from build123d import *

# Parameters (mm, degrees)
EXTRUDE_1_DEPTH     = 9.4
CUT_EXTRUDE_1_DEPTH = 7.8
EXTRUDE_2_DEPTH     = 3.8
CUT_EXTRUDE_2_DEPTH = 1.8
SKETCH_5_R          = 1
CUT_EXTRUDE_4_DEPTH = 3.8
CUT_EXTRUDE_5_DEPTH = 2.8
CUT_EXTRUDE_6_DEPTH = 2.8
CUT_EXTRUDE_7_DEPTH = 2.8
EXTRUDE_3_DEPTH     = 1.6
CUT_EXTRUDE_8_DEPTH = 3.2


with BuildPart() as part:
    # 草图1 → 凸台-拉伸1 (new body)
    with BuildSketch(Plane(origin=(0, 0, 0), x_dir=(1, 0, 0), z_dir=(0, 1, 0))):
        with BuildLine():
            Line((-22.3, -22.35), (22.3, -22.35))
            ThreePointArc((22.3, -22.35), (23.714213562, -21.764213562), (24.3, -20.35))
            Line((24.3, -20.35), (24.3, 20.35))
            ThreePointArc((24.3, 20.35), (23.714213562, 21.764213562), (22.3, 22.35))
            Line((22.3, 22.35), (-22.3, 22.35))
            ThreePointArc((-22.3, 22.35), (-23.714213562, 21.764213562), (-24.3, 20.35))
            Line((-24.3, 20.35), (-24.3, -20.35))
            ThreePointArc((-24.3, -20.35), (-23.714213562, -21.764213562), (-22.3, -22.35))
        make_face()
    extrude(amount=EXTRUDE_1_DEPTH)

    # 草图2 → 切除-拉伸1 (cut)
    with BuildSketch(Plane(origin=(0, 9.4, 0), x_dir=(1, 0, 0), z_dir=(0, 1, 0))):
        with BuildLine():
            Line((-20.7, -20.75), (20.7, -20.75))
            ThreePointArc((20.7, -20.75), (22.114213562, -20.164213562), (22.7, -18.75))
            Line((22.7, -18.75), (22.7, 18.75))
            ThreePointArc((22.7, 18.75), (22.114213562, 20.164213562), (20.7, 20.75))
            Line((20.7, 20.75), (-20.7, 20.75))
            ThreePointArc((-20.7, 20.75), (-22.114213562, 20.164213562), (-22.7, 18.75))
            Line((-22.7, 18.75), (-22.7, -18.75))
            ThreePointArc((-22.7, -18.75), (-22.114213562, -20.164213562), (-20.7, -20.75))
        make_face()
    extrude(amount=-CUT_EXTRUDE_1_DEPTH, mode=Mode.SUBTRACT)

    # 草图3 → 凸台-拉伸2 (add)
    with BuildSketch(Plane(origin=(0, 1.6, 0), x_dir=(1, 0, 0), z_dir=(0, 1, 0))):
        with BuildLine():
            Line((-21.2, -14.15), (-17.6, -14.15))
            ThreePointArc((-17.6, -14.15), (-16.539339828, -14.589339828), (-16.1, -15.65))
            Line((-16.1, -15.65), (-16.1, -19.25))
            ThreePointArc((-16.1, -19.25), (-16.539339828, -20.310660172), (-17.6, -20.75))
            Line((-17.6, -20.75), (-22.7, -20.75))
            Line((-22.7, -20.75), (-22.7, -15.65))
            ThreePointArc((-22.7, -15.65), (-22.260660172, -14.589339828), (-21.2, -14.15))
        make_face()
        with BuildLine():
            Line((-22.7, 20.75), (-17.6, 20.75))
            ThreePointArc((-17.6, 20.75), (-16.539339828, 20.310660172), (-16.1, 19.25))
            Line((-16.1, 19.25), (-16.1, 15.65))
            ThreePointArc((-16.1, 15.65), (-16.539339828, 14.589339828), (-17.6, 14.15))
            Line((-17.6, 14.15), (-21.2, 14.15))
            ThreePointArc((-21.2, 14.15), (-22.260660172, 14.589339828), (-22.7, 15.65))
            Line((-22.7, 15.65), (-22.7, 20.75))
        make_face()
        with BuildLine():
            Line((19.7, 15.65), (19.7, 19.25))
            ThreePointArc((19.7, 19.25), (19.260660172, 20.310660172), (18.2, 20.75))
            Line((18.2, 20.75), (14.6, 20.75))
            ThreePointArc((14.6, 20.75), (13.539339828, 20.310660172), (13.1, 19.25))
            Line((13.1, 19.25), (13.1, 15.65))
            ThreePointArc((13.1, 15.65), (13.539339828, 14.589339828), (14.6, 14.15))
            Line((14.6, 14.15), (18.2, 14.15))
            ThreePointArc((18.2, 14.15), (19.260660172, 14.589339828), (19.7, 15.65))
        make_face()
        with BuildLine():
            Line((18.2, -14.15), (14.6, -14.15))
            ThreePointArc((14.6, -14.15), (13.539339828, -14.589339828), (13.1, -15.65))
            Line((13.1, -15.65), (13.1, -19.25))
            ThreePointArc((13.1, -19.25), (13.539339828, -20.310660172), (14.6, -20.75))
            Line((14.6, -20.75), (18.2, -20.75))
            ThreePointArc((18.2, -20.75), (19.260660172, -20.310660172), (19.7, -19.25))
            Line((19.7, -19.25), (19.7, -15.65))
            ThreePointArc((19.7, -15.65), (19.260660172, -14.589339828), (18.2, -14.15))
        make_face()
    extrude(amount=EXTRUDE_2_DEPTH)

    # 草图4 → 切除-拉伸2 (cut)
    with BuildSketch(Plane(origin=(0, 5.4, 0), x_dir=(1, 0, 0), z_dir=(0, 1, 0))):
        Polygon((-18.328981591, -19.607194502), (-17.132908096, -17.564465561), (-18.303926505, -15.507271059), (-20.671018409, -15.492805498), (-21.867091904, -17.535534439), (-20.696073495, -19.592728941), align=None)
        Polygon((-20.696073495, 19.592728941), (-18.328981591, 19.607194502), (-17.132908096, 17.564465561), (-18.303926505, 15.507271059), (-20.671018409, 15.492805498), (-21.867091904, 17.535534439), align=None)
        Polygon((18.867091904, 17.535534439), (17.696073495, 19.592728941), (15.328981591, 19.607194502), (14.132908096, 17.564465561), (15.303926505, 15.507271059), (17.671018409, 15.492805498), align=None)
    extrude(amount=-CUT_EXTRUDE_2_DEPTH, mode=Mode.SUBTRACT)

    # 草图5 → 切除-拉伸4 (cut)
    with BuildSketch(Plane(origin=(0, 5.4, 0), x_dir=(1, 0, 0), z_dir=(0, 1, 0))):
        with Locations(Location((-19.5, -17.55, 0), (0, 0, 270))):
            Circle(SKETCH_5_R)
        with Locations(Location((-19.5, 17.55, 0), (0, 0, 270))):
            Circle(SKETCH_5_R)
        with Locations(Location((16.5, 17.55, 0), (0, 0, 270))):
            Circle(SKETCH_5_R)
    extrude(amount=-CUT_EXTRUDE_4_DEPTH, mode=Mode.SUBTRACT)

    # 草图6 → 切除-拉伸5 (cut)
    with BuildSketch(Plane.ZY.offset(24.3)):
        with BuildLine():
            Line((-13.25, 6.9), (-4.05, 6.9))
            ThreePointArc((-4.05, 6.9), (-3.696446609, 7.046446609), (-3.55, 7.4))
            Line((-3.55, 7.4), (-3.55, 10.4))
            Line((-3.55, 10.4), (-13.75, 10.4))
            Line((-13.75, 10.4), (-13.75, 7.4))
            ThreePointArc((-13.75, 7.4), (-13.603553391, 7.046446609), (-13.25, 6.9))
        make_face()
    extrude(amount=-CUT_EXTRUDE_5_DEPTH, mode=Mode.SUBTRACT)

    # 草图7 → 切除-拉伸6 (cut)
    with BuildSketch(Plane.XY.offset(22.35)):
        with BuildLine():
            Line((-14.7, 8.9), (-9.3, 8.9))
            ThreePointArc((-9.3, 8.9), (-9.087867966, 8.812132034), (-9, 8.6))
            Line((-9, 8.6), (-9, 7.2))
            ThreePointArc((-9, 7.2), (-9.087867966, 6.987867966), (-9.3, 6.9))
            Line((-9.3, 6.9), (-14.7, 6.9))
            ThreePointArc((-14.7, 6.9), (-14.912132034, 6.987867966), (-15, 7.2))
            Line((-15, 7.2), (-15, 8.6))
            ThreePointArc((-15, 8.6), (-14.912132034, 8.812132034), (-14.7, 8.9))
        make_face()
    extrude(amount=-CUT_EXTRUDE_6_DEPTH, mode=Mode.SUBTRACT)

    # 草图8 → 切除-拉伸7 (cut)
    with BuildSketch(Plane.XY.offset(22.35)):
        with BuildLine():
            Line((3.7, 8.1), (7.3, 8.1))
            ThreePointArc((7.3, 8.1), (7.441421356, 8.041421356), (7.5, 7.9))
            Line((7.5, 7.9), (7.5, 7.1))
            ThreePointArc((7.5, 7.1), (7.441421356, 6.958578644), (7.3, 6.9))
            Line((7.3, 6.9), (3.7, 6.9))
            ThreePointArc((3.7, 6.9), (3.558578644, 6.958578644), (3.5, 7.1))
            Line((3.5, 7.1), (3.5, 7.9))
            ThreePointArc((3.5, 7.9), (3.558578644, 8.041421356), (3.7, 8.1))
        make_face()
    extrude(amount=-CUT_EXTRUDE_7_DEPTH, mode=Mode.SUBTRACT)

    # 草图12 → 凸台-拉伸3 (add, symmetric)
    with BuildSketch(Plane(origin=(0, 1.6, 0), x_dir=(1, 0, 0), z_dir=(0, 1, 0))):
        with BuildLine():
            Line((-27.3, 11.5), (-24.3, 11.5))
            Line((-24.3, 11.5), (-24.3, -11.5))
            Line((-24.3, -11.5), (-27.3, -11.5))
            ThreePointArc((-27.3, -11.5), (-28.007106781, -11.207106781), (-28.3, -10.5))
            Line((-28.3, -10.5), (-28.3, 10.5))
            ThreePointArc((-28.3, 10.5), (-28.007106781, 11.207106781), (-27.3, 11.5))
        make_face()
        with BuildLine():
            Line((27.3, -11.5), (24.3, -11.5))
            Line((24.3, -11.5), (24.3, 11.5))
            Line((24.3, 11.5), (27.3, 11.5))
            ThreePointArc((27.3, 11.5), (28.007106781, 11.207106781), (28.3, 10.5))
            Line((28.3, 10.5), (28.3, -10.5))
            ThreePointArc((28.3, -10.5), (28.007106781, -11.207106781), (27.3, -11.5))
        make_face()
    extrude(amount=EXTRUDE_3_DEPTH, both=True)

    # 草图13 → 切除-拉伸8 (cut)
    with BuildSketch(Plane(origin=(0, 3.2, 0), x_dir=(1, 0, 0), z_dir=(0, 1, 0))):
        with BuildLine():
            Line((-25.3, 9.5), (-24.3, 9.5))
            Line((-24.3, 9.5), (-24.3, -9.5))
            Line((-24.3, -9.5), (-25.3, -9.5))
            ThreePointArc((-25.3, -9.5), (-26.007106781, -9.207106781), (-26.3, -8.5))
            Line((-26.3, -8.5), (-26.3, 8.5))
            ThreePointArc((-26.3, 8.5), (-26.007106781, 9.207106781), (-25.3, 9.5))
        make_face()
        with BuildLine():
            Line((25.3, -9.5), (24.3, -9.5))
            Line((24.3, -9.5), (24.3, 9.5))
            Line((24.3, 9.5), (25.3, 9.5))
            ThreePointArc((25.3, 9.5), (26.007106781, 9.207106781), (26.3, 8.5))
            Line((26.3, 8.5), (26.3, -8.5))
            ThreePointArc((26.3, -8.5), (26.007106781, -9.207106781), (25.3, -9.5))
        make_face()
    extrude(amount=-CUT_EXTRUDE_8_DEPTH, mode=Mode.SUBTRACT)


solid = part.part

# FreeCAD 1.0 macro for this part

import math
import FreeCAD as App
import Part
import Sketcher
Q = App.Units.Quantity


def add_polygon(sketch, points):
    """Adds a closed chain of lines whose ends are joined by coincident constraints."""
    first, n = sketch.GeometryCount, len(points)
    for a, b in zip(points, points[1:] + points[:1]):
        sketch.addGeometry(Part.LineSegment(App.Vector(*a, 0), App.Vector(*b, 0)), False)
    for i in range(n):
        sketch.addConstraint(Sketcher.Constraint("Coincident", first + i, 2, first + (i + 1) % n, 1))

doc = App.newDocument("Part")
body = doc.addObject("PartDesign::Body", "Body")

# Sketch on XZ plane
sketch1 = doc.addObject("Sketcher::SketchObject", "Sketch")
body.addObject(sketch1)
sketch1.AttachmentSupport = (doc.XZ_Plane, [""])
sketch1.MapMode = "FlatFace"
sketch1.addGeometry([
    Part.LineSegment(App.Vector(-22.3, 22.35, 0), App.Vector(22.3, 22.35, 0)),  # 0
    Part.ArcOfCircle(Part.Circle(App.Vector(22.3, 20.35, 0), App.Vector(0, 0, 1), 2), math.radians(0), math.radians(90)),  # 1
    Part.LineSegment(App.Vector(24.3, 20.35, 0), App.Vector(24.3, -20.35, 0)),  # 2
    Part.ArcOfCircle(Part.Circle(App.Vector(22.3, -20.35, 0), App.Vector(0, 0, 1), 2), math.radians(-90), math.radians(0)),  # 3
    Part.LineSegment(App.Vector(22.3, -22.35, 0), App.Vector(-22.3, -22.35, 0)),  # 4
    Part.ArcOfCircle(Part.Circle(App.Vector(-22.3, -20.35, 0), App.Vector(0, 0, 1), 2), math.radians(-180), math.radians(-90)),  # 5
    Part.LineSegment(App.Vector(-24.3, -20.35, 0), App.Vector(-24.3, 20.35, 0)),  # 6
    Part.ArcOfCircle(Part.Circle(App.Vector(-22.3, 20.35, 0), App.Vector(0, 0, 1), 2), math.radians(90), math.radians(180)),  # 7
], False)
sketch1.addConstraint([
    Sketcher.Constraint("Tangent", 0, 2, 1, 2),
    Sketcher.Constraint("Tangent", 1, 1, 2, 1),
    Sketcher.Constraint("Tangent", 2, 2, 3, 2),
    Sketcher.Constraint("Tangent", 3, 1, 4, 1),
    Sketcher.Constraint("Tangent", 4, 2, 5, 2),
    Sketcher.Constraint("Tangent", 5, 1, 6, 1),
    Sketcher.Constraint("Tangent", 6, 2, 7, 2),
    Sketcher.Constraint("Tangent", 7, 1, 0, 1),
    Sketcher.Constraint("Horizontal", 0),
    Sketcher.Constraint("Vertical", 2),
    Sketcher.Constraint("Horizontal", 4),
    Sketcher.Constraint("Vertical", 6),
    Sketcher.Constraint("Equal", 1, 3),
    Sketcher.Constraint("Equal", 3, 5),
    Sketcher.Constraint("Equal", 5, 7),
    Sketcher.Constraint("Symmetric", 1, 3, 5, 3, -1, 1),
    Sketcher.Constraint("Radius", 1, Q("2 mm")),
    Sketcher.Constraint("DistanceX", 0, 1, 0, 2, Q("44.6 mm")),
    Sketcher.Constraint("DistanceY", 2, 2, 2, 1, Q("40.7 mm")),
])
pad1 = doc.addObject("PartDesign::Pad", "Pad")
body.addObject(pad1)
pad1.Profile = sketch1
pad1.Length = 9.4
pad1.Reversed = True

# Sketch on XZ plane
sketch2 = doc.addObject("Sketcher::SketchObject", "Sketch001")
body.addObject(sketch2)
sketch2.AttachmentSupport = (doc.XZ_Plane, [""])
sketch2.MapMode = "FlatFace"
sketch2.AttachmentOffset = App.Placement(App.Vector(0, 0, -9.4), App.Rotation())
sketch2.addGeometry([
    Part.LineSegment(App.Vector(-20.7, 20.75, 0), App.Vector(20.7, 20.75, 0)),  # 0
    Part.ArcOfCircle(Part.Circle(App.Vector(20.7, 18.75, 0), App.Vector(0, 0, 1), 2), math.radians(0), math.radians(90)),  # 1
    Part.LineSegment(App.Vector(22.7, 18.75, 0), App.Vector(22.7, -18.75, 0)),  # 2
    Part.ArcOfCircle(Part.Circle(App.Vector(20.7, -18.75, 0), App.Vector(0, 0, 1), 2), math.radians(-90), math.radians(0)),  # 3
    Part.LineSegment(App.Vector(20.7, -20.75, 0), App.Vector(-20.7, -20.75, 0)),  # 4
    Part.ArcOfCircle(Part.Circle(App.Vector(-20.7, -18.75, 0), App.Vector(0, 0, 1), 2), math.radians(-180), math.radians(-90)),  # 5
    Part.LineSegment(App.Vector(-22.7, -18.75, 0), App.Vector(-22.7, 18.75, 0)),  # 6
    Part.ArcOfCircle(Part.Circle(App.Vector(-20.7, 18.75, 0), App.Vector(0, 0, 1), 2), math.radians(90), math.radians(180)),  # 7
], False)
sketch2.addConstraint([
    Sketcher.Constraint("Tangent", 0, 2, 1, 2),
    Sketcher.Constraint("Tangent", 1, 1, 2, 1),
    Sketcher.Constraint("Tangent", 2, 2, 3, 2),
    Sketcher.Constraint("Tangent", 3, 1, 4, 1),
    Sketcher.Constraint("Tangent", 4, 2, 5, 2),
    Sketcher.Constraint("Tangent", 5, 1, 6, 1),
    Sketcher.Constraint("Tangent", 6, 2, 7, 2),
    Sketcher.Constraint("Tangent", 7, 1, 0, 1),
    Sketcher.Constraint("Horizontal", 0),
    Sketcher.Constraint("Vertical", 2),
    Sketcher.Constraint("Horizontal", 4),
    Sketcher.Constraint("Vertical", 6),
    Sketcher.Constraint("Equal", 1, 3),
    Sketcher.Constraint("Equal", 3, 5),
    Sketcher.Constraint("Equal", 5, 7),
    Sketcher.Constraint("Symmetric", 1, 3, 5, 3, -1, 1),
    Sketcher.Constraint("Radius", 1, Q("2 mm")),
    Sketcher.Constraint("DistanceX", 0, 1, 0, 2, Q("41.4 mm")),
    Sketcher.Constraint("DistanceY", 2, 2, 2, 1, Q("37.5 mm")),
])
pocket1 = doc.addObject("PartDesign::Pocket", "Pocket")
body.addObject(pocket1)
pocket1.Profile = sketch2
pocket1.Length = 7.8
pocket1.Reversed = True

# Sketch on XZ plane
sketch3 = doc.addObject("Sketcher::SketchObject", "Sketch002")
body.addObject(sketch3)
sketch3.AttachmentSupport = (doc.XZ_Plane, [""])
sketch3.MapMode = "FlatFace"
sketch3.AttachmentOffset = App.Placement(App.Vector(0, 0, -1.6), App.Rotation())
sketch3.addGeometry([
    Part.LineSegment(App.Vector(-17.6, 14.15, 0), App.Vector(-21.2, 14.15, 0)),  # 0
    Part.ArcOfCircle(Part.Circle(App.Vector(-21.2, 15.65, 0), App.Vector(0, 0, 1), 1.5), math.radians(180), math.radians(270)),  # 1
    Part.LineSegment(App.Vector(-22.7, 15.65, 0), App.Vector(-22.7, 20.75, 0)),  # 2
    Part.LineSegment(App.Vector(-22.7, 20.75, 0), App.Vector(-17.6, 20.75, 0)),  # 3
    Part.ArcOfCircle(Part.Circle(App.Vector(-17.6, 19.25, 0), App.Vector(0, 0, 1), 1.5), math.radians(0), math.radians(90)),  # 4
    Part.LineSegment(App.Vector(-16.1, 19.25, 0), App.Vector(-16.1, 15.65, 0)),  # 5
    Part.ArcOfCircle(Part.Circle(App.Vector(-17.6, 15.65, 0), App.Vector(0, 0, 1), 1.5), math.radians(-90), math.radians(0)),  # 6
    Part.LineSegment(App.Vector(-17.6, -20.75, 0), App.Vector(-22.7, -20.75, 0)),  # 7
    Part.LineSegment(App.Vector(-22.7, -20.75, 0), App.Vector(-22.7, -15.65, 0)),  # 8
    Part.ArcOfCircle(Part.Circle(App.Vector(-21.2, -15.65, 0), App.Vector(0, 0, 1), 1.5), math.radians(90), math.radians(180)),  # 9
    Part.LineSegment(App.Vector(-21.2, -14.15, 0), App.Vector(-17.6, -14.15, 0)),  # 10
    Part.ArcOfCircle(Part.Circle(App.Vector(-17.6, -15.65, 0), App.Vector(0, 0, 1), 1.5), math.radians(0), math.radians(90)),  # 11
    Part.LineSegment(App.Vector(-16.1, -15.65, 0), App.Vector(-16.1, -19.25, 0)),  # 12
    Part.ArcOfCircle(Part.Circle(App.Vector(-17.6, -19.25, 0), App.Vector(0, 0, 1), 1.5), math.radians(-90), math.radians(0)),  # 13
    Part.LineSegment(App.Vector(19.7, -15.65, 0), App.Vector(19.7, -19.25, 0)),  # 14
    Part.ArcOfCircle(Part.Circle(App.Vector(18.2, -19.25, 0), App.Vector(0, 0, 1), 1.5), math.radians(-90), math.radians(0)),  # 15
    Part.LineSegment(App.Vector(18.2, -20.75, 0), App.Vector(14.6, -20.75, 0)),  # 16
    Part.ArcOfCircle(Part.Circle(App.Vector(14.6, -19.25, 0), App.Vector(0, 0, 1), 1.5), math.radians(180), math.radians(270)),  # 17
    Part.LineSegment(App.Vector(13.1, -19.25, 0), App.Vector(13.1, -15.65, 0)),  # 18
    Part.ArcOfCircle(Part.Circle(App.Vector(14.6, -15.65, 0), App.Vector(0, 0, 1), 1.5), math.radians(90), math.radians(180)),  # 19
    Part.LineSegment(App.Vector(14.6, -14.15, 0), App.Vector(18.2, -14.15, 0)),  # 20
    Part.ArcOfCircle(Part.Circle(App.Vector(18.2, -15.65, 0), App.Vector(0, 0, 1), 1.5), math.radians(0), math.radians(90)),  # 21
    Part.LineSegment(App.Vector(18.2, 14.15, 0), App.Vector(14.6, 14.15, 0)),  # 22
    Part.ArcOfCircle(Part.Circle(App.Vector(14.6, 15.65, 0), App.Vector(0, 0, 1), 1.5), math.radians(180), math.radians(270)),  # 23
    Part.LineSegment(App.Vector(13.1, 15.65, 0), App.Vector(13.1, 19.25, 0)),  # 24
    Part.ArcOfCircle(Part.Circle(App.Vector(14.6, 19.25, 0), App.Vector(0, 0, 1), 1.5), math.radians(90), math.radians(180)),  # 25
    Part.LineSegment(App.Vector(14.6, 20.75, 0), App.Vector(18.2, 20.75, 0)),  # 26
    Part.ArcOfCircle(Part.Circle(App.Vector(18.2, 19.25, 0), App.Vector(0, 0, 1), 1.5), math.radians(0), math.radians(90)),  # 27
    Part.LineSegment(App.Vector(19.7, 19.25, 0), App.Vector(19.7, 15.65, 0)),  # 28
    Part.ArcOfCircle(Part.Circle(App.Vector(18.2, 15.65, 0), App.Vector(0, 0, 1), 1.5), math.radians(-90), math.radians(0)),  # 29
], False)
sketch3.addConstraint([
    Sketcher.Constraint("Tangent", 0, 2, 1, 2),
    Sketcher.Constraint("Tangent", 1, 1, 2, 1),
    Sketcher.Constraint("Coincident", 2, 2, 3, 1),
    Sketcher.Constraint("Tangent", 3, 2, 4, 2),
    Sketcher.Constraint("Tangent", 4, 1, 5, 1),
    Sketcher.Constraint("Tangent", 5, 2, 6, 2),
    Sketcher.Constraint("Tangent", 6, 1, 0, 1),
    Sketcher.Constraint("Coincident", 7, 2, 8, 1),
    Sketcher.Constraint("Tangent", 8, 2, 9, 2),
    Sketcher.Constraint("Tangent", 9, 1, 10, 1),
    Sketcher.Constraint("Tangent", 10, 2, 11, 2),
    Sketcher.Constraint("Tangent", 11, 1, 12, 1),
    Sketcher.Constraint("Tangent", 12, 2, 13, 2),
    Sketcher.Constraint("Tangent", 13, 1, 7, 1),
    Sketcher.Constraint("Tangent", 14, 2, 15, 2),
    Sketcher.Constraint("Tangent", 15, 1, 16, 1),
    Sketcher.Constraint("Tangent", 16, 2, 17, 2),
    Sketcher.Constraint("Tangent", 17, 1, 18, 1),
    Sketcher.Constraint("Tangent", 18, 2, 19, 2),
    Sketcher.Constraint("Tangent", 19, 1, 20, 1),
    Sketcher.Constraint("Tangent", 20, 2, 21, 2),
    Sketcher.Constraint("Tangent", 21, 1, 14, 1),
    Sketcher.Constraint("Tangent", 22, 2, 23, 2),
    Sketcher.Constraint("Tangent", 23, 1, 24, 1),
    Sketcher.Constraint("Tangent", 24, 2, 25, 2),
    Sketcher.Constraint("Tangent", 25, 1, 26, 1),
    Sketcher.Constraint("Tangent", 26, 2, 27, 2),
    Sketcher.Constraint("Tangent", 27, 1, 28, 1),
    Sketcher.Constraint("Tangent", 28, 2, 29, 2),
    Sketcher.Constraint("Tangent", 29, 1, 22, 1),
    Sketcher.Constraint("Horizontal", 0),
    Sketcher.Constraint("Vertical", 2),
    Sketcher.Constraint("Horizontal", 3),
    Sketcher.Constraint("Vertical", 5),
    Sketcher.Constraint("Horizontal", 7),
    Sketcher.Constraint("Vertical", 8),
    Sketcher.Constraint("Horizontal", 10),
    Sketcher.Constraint("Vertical", 12),
    Sketcher.Constraint("Vertical", 14),
    Sketcher.Constraint("Horizontal", 16),
    Sketcher.Constraint("Vertical", 18),
    Sketcher.Constraint("Horizontal", 20),
    Sketcher.Constraint("Horizontal", 22),
    Sketcher.Constraint("Vertical", 24),
    Sketcher.Constraint("Horizontal", 26),
    Sketcher.Constraint("Vertical", 28),
    Sketcher.Constraint("Equal", 1, 4),
    Sketcher.Constraint("Equal", 4, 6),
    Sketcher.Constraint("Equal", 6, 9),
    Sketcher.Constraint("Equal", 9, 11),
    Sketcher.Constraint("Equal", 11, 13),
    Sketcher.Constraint("Equal", 13, 15),
    Sketcher.Constraint("Equal", 15, 17),
    Sketcher.Constraint("Equal", 17, 19),
    Sketcher.Constraint("Equal", 19, 21),
    Sketcher.Constraint("Equal", 21, 23),
    Sketcher.Constraint("Equal", 23, 25),
    Sketcher.Constraint("Equal", 25, 27),
    Sketcher.Constraint("Equal", 27, 29),
    Sketcher.Constraint("Symmetric", 1, 3, 9, 3, -1),
    Sketcher.Constraint("Symmetric", 4, 3, 13, 3, -1),
    Sketcher.Constraint("Symmetric", 19, 3, 23, 3, -1),
    Sketcher.Constraint("Symmetric", 15, 3, 27, 3, -1),
    Sketcher.Constraint("Horizontal", 13, 3, 15, 3),
    Sketcher.Constraint("Horizontal", 11, 3, 19, 3),
    Sketcher.Constraint("Equal", 10, 16),
    Sketcher.Constraint("Equal", 7, 2),
    Sketcher.Constraint("Radius", 1, Q("1.5 mm")),
    Sketcher.Constraint("DistanceX", 0, 2, 0, 1, Q("3.6 mm")),
    Sketcher.Constraint("DistanceX", 1, 3, -1, 1, Q("21.2 mm")),
    Sketcher.Constraint("DistanceX", -1, 1, 15, 3, Q("18.2 mm")),
    Sketcher.Constraint("DistanceY", 9, 3, 1, 3, Q("31.3 mm")),
])
pad2 = doc.addObject("PartDesign::Pad", "Pad001")
body.addObject(pad2)
pad2.Profile = sketch3
pad2.Length = 3.8
pad2.Reversed = True

# Sketch on XZ plane
sketch4 = doc.addObject("Sketcher::SketchObject", "Sketch003")
body.addObject(sketch4)
sketch4.AttachmentSupport = (doc.XZ_Plane, [""])
sketch4.MapMode = "FlatFace"
sketch4.AttachmentOffset = App.Placement(App.Vector(0, 0, -5.4), App.Rotation())
add_polygon(sketch4, [(-18.328982, 19.607195), (-17.132908, 17.564466), (-18.303927, 15.507271), (-20.671018, 15.492805), (-21.867092, 17.535534), (-20.696073, 19.592729)])  # lines 0-5
add_polygon(sketch4, [(-18.328982, -19.607195), (-20.696073, -19.592729), (-21.867092, -17.535534), (-20.671018, -15.492805), (-18.303927, -15.507271), (-17.132908, -17.564466)])  # lines 6-11
add_polygon(sketch4, [(18.867092, -17.535534), (17.696073, -19.592729), (15.328982, -19.607195), (14.132908, -17.564466), (15.303927, -15.507271), (17.671018, -15.492805)])  # lines 12-17
sketch4.addConstraint([
    Sketcher.Constraint("Symmetric", 4, 2, 6, 2, -1),
    Sketcher.Constraint("Symmetric", 3, 2, 7, 2, -1),
    Sketcher.Constraint("Symmetric", 2, 2, 8, 2, -1),
    Sketcher.Constraint("Symmetric", 1, 2, 9, 2, -1),
    Sketcher.Constraint("Symmetric", 0, 2, 10, 2, -1),
    Sketcher.Constraint("Symmetric", 5, 2, 11, 2, -1),
    Sketcher.Constraint("Parallel", 0, 3),
    Sketcher.Constraint("Parallel", 1, 4),
    Sketcher.Constraint("Parallel", 2, 5),
    Sketcher.Constraint("Parallel", 4, 12),
    Sketcher.Constraint("Parallel", 5, 13),
    Sketcher.Constraint("Parallel", 3, 14),
    Sketcher.Constraint("Parallel", 12, 15),
    Sketcher.Constraint("Parallel", 13, 16),
    Sketcher.Constraint("Parallel", 14, 17),
    Sketcher.Constraint("Horizontal", 6, 2, 12, 2),
    Sketcher.Constraint("Horizontal", 11, 2, 13, 2),
    Sketcher.Constraint("Horizontal", 10, 2, 14, 2),
    Sketcher.Constraint("Horizontal", 9, 2, 15, 2),
    Sketcher.Constraint("Horizontal", 8, 2, 16, 2),
    Sketcher.Constraint("Equal", 0, 1),
    Sketcher.Constraint("Equal", 1, 2),
    Sketcher.Constraint("Equal", 2, 3),
    Sketcher.Constraint("DistanceX", 9, 2, 12, 2, Q("36 mm")),
    Sketcher.Constraint("DistanceY", 6, 2, 1, 2, Q("35.1 mm")),
    Sketcher.Constraint("DistanceX", 0, 2, -1, 1, Q("17.132908 mm")),
    Sketcher.Constraint("DistanceY", -1, 1, 1, 2, Q("15.507271 mm")),
    Sketcher.Constraint("DistanceX", 2, 2, -1, 1, Q("20.671018 mm")),
    Sketcher.Constraint("DistanceX", 3, 2, -1, 1, Q("21.867092 mm")),
    Sketcher.Constraint("DistanceX", 1, 2, 0, 2, Q("1.171018 mm")),
])
pocket2 = doc.addObject("PartDesign::Pocket", "Pocket001")
body.addObject(pocket2)
pocket2.Profile = sketch4
pocket2.Length = 1.8
pocket2.Reversed = True

# Sketch on XZ plane
sketch5 = doc.addObject("Sketcher::SketchObject", "Sketch004")
body.addObject(sketch5)
sketch5.AttachmentSupport = (doc.XZ_Plane, [""])
sketch5.MapMode = "FlatFace"
sketch5.AttachmentOffset = App.Placement(App.Vector(0, 0, -5.4), App.Rotation())
sketch5.addGeometry([
    Part.Circle(App.Vector(-19.5, 17.55, 0), App.Vector(0, 0, 1), 1),
    Part.Circle(App.Vector(-19.5, -17.55, 0), App.Vector(0, 0, 1), 1),
    Part.Circle(App.Vector(16.5, -17.55, 0), App.Vector(0, 0, 1), 1),
], False)
sketch5.addConstraint([
    Sketcher.Constraint("Equal", 0, 1),
    Sketcher.Constraint("Equal", 1, 2),
    Sketcher.Constraint("Symmetric", 0, 3, 1, 3, -1),
    Sketcher.Constraint("Horizontal", 1, 3, 2, 3),
    Sketcher.Constraint("Diameter", 0, Q("2 mm")),
    Sketcher.Constraint("DistanceX", 1, 3, 2, 3, Q("36 mm")),
    Sketcher.Constraint("DistanceX", 0, 3, -1, 1, Q("19.5 mm")),
    Sketcher.Constraint("DistanceY", 1, 3, 0, 3, Q("35.1 mm")),
])
pocket3 = doc.addObject("PartDesign::Pocket", "Pocket002")
body.addObject(pocket3)
pocket3.Profile = sketch5
pocket3.Length = 3.8
pocket3.Reversed = True

# Sketch on YZ plane
sketch6 = doc.addObject("Sketcher::SketchObject", "Sketch005")
body.addObject(sketch6)
sketch6.AttachmentSupport = (doc.YZ_Plane, [""])
sketch6.MapMode = "FlatFace"
sketch6.AttachmentOffset = App.Placement(App.Vector(0, 0, -24.3), App.Rotation())
sketch6.addGeometry([
    Part.LineSegment(App.Vector(6.9, -13.25, 0), App.Vector(6.9, -4.05, 0)),  # 0
    Part.ArcOfCircle(Part.Circle(App.Vector(7.4, -4.05, 0), App.Vector(0, 0, 1), 0.5), math.radians(90), math.radians(180)),  # 1
    Part.LineSegment(App.Vector(7.4, -3.55, 0), App.Vector(10.4, -3.55, 0)),  # 2
    Part.LineSegment(App.Vector(10.4, -3.55, 0), App.Vector(10.4, -13.75, 0)),  # 3
    Part.LineSegment(App.Vector(10.4, -13.75, 0), App.Vector(7.4, -13.75, 0)),  # 4
    Part.ArcOfCircle(Part.Circle(App.Vector(7.4, -13.25, 0), App.Vector(0, 0, 1), 0.5), math.radians(180), math.radians(270)),  # 5
], False)
sketch6.addConstraint([
    Sketcher.Constraint("Tangent", 0, 2, 1, 2),
    Sketcher.Constraint("Tangent", 1, 1, 2, 1),
    Sketcher.Constraint("Coincident", 2, 2, 3, 1),
    Sketcher.Constraint("Coincident", 3, 2, 4, 1),
    Sketcher.Constraint("Tangent", 4, 2, 5, 2),
    Sketcher.Constraint("Tangent", 5, 1, 0, 1),
    Sketcher.Constraint("Vertical", 0),
    Sketcher.Constraint("Horizontal", 2),
    Sketcher.Constraint("Vertical", 3),
    Sketcher.Constraint("Horizontal", 4),
    Sketcher.Constraint("Equal", 1, 5),
    Sketcher.Constraint("Radius", 1, Q("0.5 mm")),
    Sketcher.Constraint("DistanceX", 2, 1, 2, 2, Q("3 mm")),
    Sketcher.Constraint("DistanceY", 0, 1, 0, 2, Q("9.2 mm")),
    Sketcher.Constraint("DistanceX", -1, 1, 1, 3, Q("7.4 mm")),
    Sketcher.Constraint("DistanceY", 1, 3, -1, 1, Q("4.05 mm")),
])
pocket4 = doc.addObject("PartDesign::Pocket", "Pocket003")
body.addObject(pocket4)
pocket4.Profile = sketch6
pocket4.Length = 2.8
pocket4.Reversed = True

# Sketch on XY plane
sketch7 = doc.addObject("Sketcher::SketchObject", "Sketch006")
body.addObject(sketch7)
sketch7.AttachmentSupport = (doc.XY_Plane, [""])
sketch7.MapMode = "FlatFace"
sketch7.AttachmentOffset = App.Placement(App.Vector(0, 0, 22.35), App.Rotation())
sketch7.addGeometry([
    Part.LineSegment(App.Vector(-9.3, 8.9, 0), App.Vector(-14.7, 8.9, 0)),  # 0
    Part.ArcOfCircle(Part.Circle(App.Vector(-14.7, 8.6, 0), App.Vector(0, 0, 1), 0.3), math.radians(90), math.radians(180)),  # 1
    Part.LineSegment(App.Vector(-15, 8.6, 0), App.Vector(-15, 7.2, 0)),  # 2
    Part.ArcOfCircle(Part.Circle(App.Vector(-14.7, 7.2, 0), App.Vector(0, 0, 1), 0.3), math.radians(-180), math.radians(-90)),  # 3
    Part.LineSegment(App.Vector(-14.7, 6.9, 0), App.Vector(-9.3, 6.9, 0)),  # 4
    Part.ArcOfCircle(Part.Circle(App.Vector(-9.3, 7.2, 0), App.Vector(0, 0, 1), 0.3), math.radians(-90), math.radians(0)),  # 5
    Part.LineSegment(App.Vector(-9, 7.2, 0), App.Vector(-9, 8.6, 0)),  # 6
    Part.ArcOfCircle(Part.Circle(App.Vector(-9.3, 8.6, 0), App.Vector(0, 0, 1), 0.3), math.radians(0), math.radians(90)),  # 7
], False)
sketch7.addConstraint([
    Sketcher.Constraint("Tangent", 0, 2, 1, 1),
    Sketcher.Constraint("Tangent", 1, 2, 2, 1),
    Sketcher.Constraint("Tangent", 2, 2, 3, 1),
    Sketcher.Constraint("Tangent", 3, 2, 4, 1),
    Sketcher.Constraint("Tangent", 4, 2, 5, 1),
    Sketcher.Constraint("Tangent", 5, 2, 6, 1),
    Sketcher.Constraint("Tangent", 6, 2, 7, 1),
    Sketcher.Constraint("Tangent", 7, 2, 0, 1),
    Sketcher.Constraint("Horizontal", 0),
    Sketcher.Constraint("Vertical", 2),
    Sketcher.Constraint("Horizontal", 4),
    Sketcher.Constraint("Vertical", 6),
    Sketcher.Constraint("Equal", 1, 3),
    Sketcher.Constraint("Equal", 3, 5),
    Sketcher.Constraint("Equal", 5, 7),
    Sketcher.Constraint("Radius", 1, Q("0.3 mm")),
    Sketcher.Constraint("DistanceX", 0, 2, 0, 1, Q("5.4 mm")),
    Sketcher.Constraint("DistanceY", 2, 2, 2, 1, Q("1.4 mm")),
    Sketcher.Constraint("DistanceX", 1, 2, -1, 1, Q("15 mm")),
    Sketcher.Constraint("DistanceY", -1, 1, 1, 3, Q("8.6 mm")),
])
pocket5 = doc.addObject("PartDesign::Pocket", "Pocket004")
body.addObject(pocket5)
pocket5.Profile = sketch7
pocket5.Length = 2.8

# Sketch on XY plane
sketch8 = doc.addObject("Sketcher::SketchObject", "Sketch007")
body.addObject(sketch8)
sketch8.AttachmentSupport = (doc.XY_Plane, [""])
sketch8.MapMode = "FlatFace"
sketch8.AttachmentOffset = App.Placement(App.Vector(0, 0, 22.35), App.Rotation())
sketch8.addGeometry([
    Part.LineSegment(App.Vector(7.3, 8.1, 0), App.Vector(3.7, 8.1, 0)),  # 0
    Part.ArcOfCircle(Part.Circle(App.Vector(3.7, 7.9, 0), App.Vector(0, 0, 1), 0.2), math.radians(90), math.radians(180)),  # 1
    Part.LineSegment(App.Vector(3.5, 7.9, 0), App.Vector(3.5, 7.1, 0)),  # 2
    Part.ArcOfCircle(Part.Circle(App.Vector(3.7, 7.1, 0), App.Vector(0, 0, 1), 0.2), math.radians(-180), math.radians(-90)),  # 3
    Part.LineSegment(App.Vector(3.7, 6.9, 0), App.Vector(7.3, 6.9, 0)),  # 4
    Part.ArcOfCircle(Part.Circle(App.Vector(7.3, 7.1, 0), App.Vector(0, 0, 1), 0.2), math.radians(-90), math.radians(0)),  # 5
    Part.LineSegment(App.Vector(7.5, 7.1, 0), App.Vector(7.5, 7.9, 0)),  # 6
    Part.ArcOfCircle(Part.Circle(App.Vector(7.3, 7.9, 0), App.Vector(0, 0, 1), 0.2), math.radians(0), math.radians(90)),  # 7
], False)
sketch8.addConstraint([
    Sketcher.Constraint("Tangent", 0, 2, 1, 1),
    Sketcher.Constraint("Tangent", 1, 2, 2, 1),
    Sketcher.Constraint("Tangent", 2, 2, 3, 1),
    Sketcher.Constraint("Tangent", 3, 2, 4, 1),
    Sketcher.Constraint("Tangent", 4, 2, 5, 1),
    Sketcher.Constraint("Tangent", 5, 2, 6, 1),
    Sketcher.Constraint("Tangent", 6, 2, 7, 1),
    Sketcher.Constraint("Tangent", 7, 2, 0, 1),
    Sketcher.Constraint("Horizontal", 0),
    Sketcher.Constraint("Vertical", 2),
    Sketcher.Constraint("Horizontal", 4),
    Sketcher.Constraint("Vertical", 6),
    Sketcher.Constraint("Equal", 1, 3),
    Sketcher.Constraint("Equal", 3, 5),
    Sketcher.Constraint("Equal", 5, 7),
    Sketcher.Constraint("Radius", 1, Q("0.2 mm")),
    Sketcher.Constraint("DistanceX", 0, 2, 0, 1, Q("3.6 mm")),
    Sketcher.Constraint("DistanceY", 2, 2, 2, 1, Q("0.8 mm")),
    Sketcher.Constraint("DistanceX", -1, 1, 1, 3, Q("3.7 mm")),
    Sketcher.Constraint("DistanceY", -1, 1, 1, 3, Q("7.9 mm")),
])
pocket6 = doc.addObject("PartDesign::Pocket", "Pocket005")
body.addObject(pocket6)
pocket6.Profile = sketch8
pocket6.Length = 2.8

# Sketch on XZ plane
sketch9 = doc.addObject("Sketcher::SketchObject", "Sketch008")
body.addObject(sketch9)
sketch9.AttachmentSupport = (doc.XZ_Plane, [""])
sketch9.MapMode = "FlatFace"
sketch9.AttachmentOffset = App.Placement(App.Vector(0, 0, -1.6), App.Rotation())
sketch9.addGeometry([
    Part.LineSegment(App.Vector(-24.3, -11.5, 0), App.Vector(-27.3, -11.5, 0)),  # 0
    Part.ArcOfCircle(Part.Circle(App.Vector(-27.3, -10.5, 0), App.Vector(0, 0, 1), 1), math.radians(-180), math.radians(-90)),  # 1
    Part.LineSegment(App.Vector(-28.3, -10.5, 0), App.Vector(-28.3, 10.5, 0)),  # 2
    Part.ArcOfCircle(Part.Circle(App.Vector(-27.3, 10.5, 0), App.Vector(0, 0, 1), 1), math.radians(90), math.radians(180)),  # 3
    Part.LineSegment(App.Vector(-27.3, 11.5, 0), App.Vector(-24.3, 11.5, 0)),  # 4
    Part.LineSegment(App.Vector(-24.3, 11.5, 0), App.Vector(-24.3, -11.5, 0)),  # 5
    Part.LineSegment(App.Vector(24.3, 11.5, 0), App.Vector(27.3, 11.5, 0)),  # 6
    Part.ArcOfCircle(Part.Circle(App.Vector(27.3, 10.5, 0), App.Vector(0, 0, 1), 1), math.radians(0), math.radians(90)),  # 7
    Part.LineSegment(App.Vector(28.3, 10.5, 0), App.Vector(28.3, -10.5, 0)),  # 8
    Part.ArcOfCircle(Part.Circle(App.Vector(27.3, -10.5, 0), App.Vector(0, 0, 1), 1), math.radians(-90), math.radians(0)),  # 9
    Part.LineSegment(App.Vector(27.3, -11.5, 0), App.Vector(24.3, -11.5, 0)),  # 10
    Part.LineSegment(App.Vector(24.3, -11.5, 0), App.Vector(24.3, 11.5, 0)),  # 11
], False)
sketch9.addConstraint([
    Sketcher.Constraint("Tangent", 0, 2, 1, 2),
    Sketcher.Constraint("Tangent", 1, 1, 2, 1),
    Sketcher.Constraint("Tangent", 2, 2, 3, 2),
    Sketcher.Constraint("Tangent", 3, 1, 4, 1),
    Sketcher.Constraint("Coincident", 4, 2, 5, 1),
    Sketcher.Constraint("Coincident", 5, 2, 0, 1),
    Sketcher.Constraint("Tangent", 6, 2, 7, 2),
    Sketcher.Constraint("Tangent", 7, 1, 8, 1),
    Sketcher.Constraint("Tangent", 8, 2, 9, 2),
    Sketcher.Constraint("Tangent", 9, 1, 10, 1),
    Sketcher.Constraint("Coincident", 10, 2, 11, 1),
    Sketcher.Constraint("Coincident", 11, 2, 6, 1),
    Sketcher.Constraint("Horizontal", 0),
    Sketcher.Constraint("Vertical", 2),
    Sketcher.Constraint("Horizontal", 4),
    Sketcher.Constraint("Vertical", 5),
    Sketcher.Constraint("Horizontal", 6),
    Sketcher.Constraint("Vertical", 8),
    Sketcher.Constraint("Horizontal", 10),
    Sketcher.Constraint("Vertical", 11),
    Sketcher.Constraint("Equal", 1, 3),
    Sketcher.Constraint("Equal", 3, 7),
    Sketcher.Constraint("Equal", 7, 9),
    Sketcher.Constraint("Symmetric", 1, 3, 7, 3, -1, 1),
    Sketcher.Constraint("Symmetric", 4, 2, 10, 2, -1, 1),
    Sketcher.Constraint("Horizontal", 3, 3, 7, 3),
    Sketcher.Constraint("Radius", 1, Q("1 mm")),
    Sketcher.Constraint("DistanceX", 0, 2, 0, 1, Q("3 mm")),
    Sketcher.Constraint("DistanceY", 2, 1, 2, 2, Q("21 mm")),
    Sketcher.Constraint("DistanceX", 1, 3, -1, 1, Q("27.3 mm")),
])
pad3 = doc.addObject("PartDesign::Pad", "Pad002")
body.addObject(pad3)
pad3.Profile = sketch9
pad3.Length = 3.2
pad3.Midplane = True

# Sketch on XZ plane
sketch10 = doc.addObject("Sketcher::SketchObject", "Sketch009")
body.addObject(sketch10)
sketch10.AttachmentSupport = (doc.XZ_Plane, [""])
sketch10.MapMode = "FlatFace"
sketch10.AttachmentOffset = App.Placement(App.Vector(0, 0, -3.2), App.Rotation())
sketch10.addGeometry([
    Part.LineSegment(App.Vector(-24.3, -9.5, 0), App.Vector(-25.3, -9.5, 0)),  # 0
    Part.ArcOfCircle(Part.Circle(App.Vector(-25.3, -8.5, 0), App.Vector(0, 0, 1), 1), math.radians(-180), math.radians(-90)),  # 1
    Part.LineSegment(App.Vector(-26.3, -8.5, 0), App.Vector(-26.3, 8.5, 0)),  # 2
    Part.ArcOfCircle(Part.Circle(App.Vector(-25.3, 8.5, 0), App.Vector(0, 0, 1), 1), math.radians(90), math.radians(180)),  # 3
    Part.LineSegment(App.Vector(-25.3, 9.5, 0), App.Vector(-24.3, 9.5, 0)),  # 4
    Part.LineSegment(App.Vector(-24.3, 9.5, 0), App.Vector(-24.3, -9.5, 0)),  # 5
    Part.LineSegment(App.Vector(24.3, 9.5, 0), App.Vector(25.3, 9.5, 0)),  # 6
    Part.ArcOfCircle(Part.Circle(App.Vector(25.3, 8.5, 0), App.Vector(0, 0, 1), 1), math.radians(0), math.radians(90)),  # 7
    Part.LineSegment(App.Vector(26.3, 8.5, 0), App.Vector(26.3, -8.5, 0)),  # 8
    Part.ArcOfCircle(Part.Circle(App.Vector(25.3, -8.5, 0), App.Vector(0, 0, 1), 1), math.radians(-90), math.radians(0)),  # 9
    Part.LineSegment(App.Vector(25.3, -9.5, 0), App.Vector(24.3, -9.5, 0)),  # 10
    Part.LineSegment(App.Vector(24.3, -9.5, 0), App.Vector(24.3, 9.5, 0)),  # 11
], False)
sketch10.addConstraint([
    Sketcher.Constraint("Tangent", 0, 2, 1, 2),
    Sketcher.Constraint("Tangent", 1, 1, 2, 1),
    Sketcher.Constraint("Tangent", 2, 2, 3, 2),
    Sketcher.Constraint("Tangent", 3, 1, 4, 1),
    Sketcher.Constraint("Coincident", 4, 2, 5, 1),
    Sketcher.Constraint("Coincident", 5, 2, 0, 1),
    Sketcher.Constraint("Tangent", 6, 2, 7, 2),
    Sketcher.Constraint("Tangent", 7, 1, 8, 1),
    Sketcher.Constraint("Tangent", 8, 2, 9, 2),
    Sketcher.Constraint("Tangent", 9, 1, 10, 1),
    Sketcher.Constraint("Coincident", 10, 2, 11, 1),
    Sketcher.Constraint("Coincident", 11, 2, 6, 1),
    Sketcher.Constraint("Horizontal", 0),
    Sketcher.Constraint("Vertical", 2),
    Sketcher.Constraint("Horizontal", 4),
    Sketcher.Constraint("Vertical", 5),
    Sketcher.Constraint("Horizontal", 6),
    Sketcher.Constraint("Vertical", 8),
    Sketcher.Constraint("Horizontal", 10),
    Sketcher.Constraint("Vertical", 11),
    Sketcher.Constraint("Equal", 1, 3),
    Sketcher.Constraint("Equal", 3, 7),
    Sketcher.Constraint("Equal", 7, 9),
    Sketcher.Constraint("Symmetric", 1, 3, 7, 3, -1, 1),
    Sketcher.Constraint("Symmetric", 4, 2, 10, 2, -1, 1),
    Sketcher.Constraint("Horizontal", 3, 3, 7, 3),
    Sketcher.Constraint("Radius", 1, Q("1 mm")),
    Sketcher.Constraint("DistanceX", 0, 2, 0, 1, Q("1 mm")),
    Sketcher.Constraint("DistanceY", 2, 1, 2, 2, Q("17 mm")),
    Sketcher.Constraint("DistanceX", 1, 3, -1, 1, Q("25.3 mm")),
])
pocket7 = doc.addObject("PartDesign::Pocket", "Pocket006")
body.addObject(pocket7)
pocket7.Profile = sketch10
pocket7.Length = 3.2
pocket7.Reversed = True

doc.recompute()
